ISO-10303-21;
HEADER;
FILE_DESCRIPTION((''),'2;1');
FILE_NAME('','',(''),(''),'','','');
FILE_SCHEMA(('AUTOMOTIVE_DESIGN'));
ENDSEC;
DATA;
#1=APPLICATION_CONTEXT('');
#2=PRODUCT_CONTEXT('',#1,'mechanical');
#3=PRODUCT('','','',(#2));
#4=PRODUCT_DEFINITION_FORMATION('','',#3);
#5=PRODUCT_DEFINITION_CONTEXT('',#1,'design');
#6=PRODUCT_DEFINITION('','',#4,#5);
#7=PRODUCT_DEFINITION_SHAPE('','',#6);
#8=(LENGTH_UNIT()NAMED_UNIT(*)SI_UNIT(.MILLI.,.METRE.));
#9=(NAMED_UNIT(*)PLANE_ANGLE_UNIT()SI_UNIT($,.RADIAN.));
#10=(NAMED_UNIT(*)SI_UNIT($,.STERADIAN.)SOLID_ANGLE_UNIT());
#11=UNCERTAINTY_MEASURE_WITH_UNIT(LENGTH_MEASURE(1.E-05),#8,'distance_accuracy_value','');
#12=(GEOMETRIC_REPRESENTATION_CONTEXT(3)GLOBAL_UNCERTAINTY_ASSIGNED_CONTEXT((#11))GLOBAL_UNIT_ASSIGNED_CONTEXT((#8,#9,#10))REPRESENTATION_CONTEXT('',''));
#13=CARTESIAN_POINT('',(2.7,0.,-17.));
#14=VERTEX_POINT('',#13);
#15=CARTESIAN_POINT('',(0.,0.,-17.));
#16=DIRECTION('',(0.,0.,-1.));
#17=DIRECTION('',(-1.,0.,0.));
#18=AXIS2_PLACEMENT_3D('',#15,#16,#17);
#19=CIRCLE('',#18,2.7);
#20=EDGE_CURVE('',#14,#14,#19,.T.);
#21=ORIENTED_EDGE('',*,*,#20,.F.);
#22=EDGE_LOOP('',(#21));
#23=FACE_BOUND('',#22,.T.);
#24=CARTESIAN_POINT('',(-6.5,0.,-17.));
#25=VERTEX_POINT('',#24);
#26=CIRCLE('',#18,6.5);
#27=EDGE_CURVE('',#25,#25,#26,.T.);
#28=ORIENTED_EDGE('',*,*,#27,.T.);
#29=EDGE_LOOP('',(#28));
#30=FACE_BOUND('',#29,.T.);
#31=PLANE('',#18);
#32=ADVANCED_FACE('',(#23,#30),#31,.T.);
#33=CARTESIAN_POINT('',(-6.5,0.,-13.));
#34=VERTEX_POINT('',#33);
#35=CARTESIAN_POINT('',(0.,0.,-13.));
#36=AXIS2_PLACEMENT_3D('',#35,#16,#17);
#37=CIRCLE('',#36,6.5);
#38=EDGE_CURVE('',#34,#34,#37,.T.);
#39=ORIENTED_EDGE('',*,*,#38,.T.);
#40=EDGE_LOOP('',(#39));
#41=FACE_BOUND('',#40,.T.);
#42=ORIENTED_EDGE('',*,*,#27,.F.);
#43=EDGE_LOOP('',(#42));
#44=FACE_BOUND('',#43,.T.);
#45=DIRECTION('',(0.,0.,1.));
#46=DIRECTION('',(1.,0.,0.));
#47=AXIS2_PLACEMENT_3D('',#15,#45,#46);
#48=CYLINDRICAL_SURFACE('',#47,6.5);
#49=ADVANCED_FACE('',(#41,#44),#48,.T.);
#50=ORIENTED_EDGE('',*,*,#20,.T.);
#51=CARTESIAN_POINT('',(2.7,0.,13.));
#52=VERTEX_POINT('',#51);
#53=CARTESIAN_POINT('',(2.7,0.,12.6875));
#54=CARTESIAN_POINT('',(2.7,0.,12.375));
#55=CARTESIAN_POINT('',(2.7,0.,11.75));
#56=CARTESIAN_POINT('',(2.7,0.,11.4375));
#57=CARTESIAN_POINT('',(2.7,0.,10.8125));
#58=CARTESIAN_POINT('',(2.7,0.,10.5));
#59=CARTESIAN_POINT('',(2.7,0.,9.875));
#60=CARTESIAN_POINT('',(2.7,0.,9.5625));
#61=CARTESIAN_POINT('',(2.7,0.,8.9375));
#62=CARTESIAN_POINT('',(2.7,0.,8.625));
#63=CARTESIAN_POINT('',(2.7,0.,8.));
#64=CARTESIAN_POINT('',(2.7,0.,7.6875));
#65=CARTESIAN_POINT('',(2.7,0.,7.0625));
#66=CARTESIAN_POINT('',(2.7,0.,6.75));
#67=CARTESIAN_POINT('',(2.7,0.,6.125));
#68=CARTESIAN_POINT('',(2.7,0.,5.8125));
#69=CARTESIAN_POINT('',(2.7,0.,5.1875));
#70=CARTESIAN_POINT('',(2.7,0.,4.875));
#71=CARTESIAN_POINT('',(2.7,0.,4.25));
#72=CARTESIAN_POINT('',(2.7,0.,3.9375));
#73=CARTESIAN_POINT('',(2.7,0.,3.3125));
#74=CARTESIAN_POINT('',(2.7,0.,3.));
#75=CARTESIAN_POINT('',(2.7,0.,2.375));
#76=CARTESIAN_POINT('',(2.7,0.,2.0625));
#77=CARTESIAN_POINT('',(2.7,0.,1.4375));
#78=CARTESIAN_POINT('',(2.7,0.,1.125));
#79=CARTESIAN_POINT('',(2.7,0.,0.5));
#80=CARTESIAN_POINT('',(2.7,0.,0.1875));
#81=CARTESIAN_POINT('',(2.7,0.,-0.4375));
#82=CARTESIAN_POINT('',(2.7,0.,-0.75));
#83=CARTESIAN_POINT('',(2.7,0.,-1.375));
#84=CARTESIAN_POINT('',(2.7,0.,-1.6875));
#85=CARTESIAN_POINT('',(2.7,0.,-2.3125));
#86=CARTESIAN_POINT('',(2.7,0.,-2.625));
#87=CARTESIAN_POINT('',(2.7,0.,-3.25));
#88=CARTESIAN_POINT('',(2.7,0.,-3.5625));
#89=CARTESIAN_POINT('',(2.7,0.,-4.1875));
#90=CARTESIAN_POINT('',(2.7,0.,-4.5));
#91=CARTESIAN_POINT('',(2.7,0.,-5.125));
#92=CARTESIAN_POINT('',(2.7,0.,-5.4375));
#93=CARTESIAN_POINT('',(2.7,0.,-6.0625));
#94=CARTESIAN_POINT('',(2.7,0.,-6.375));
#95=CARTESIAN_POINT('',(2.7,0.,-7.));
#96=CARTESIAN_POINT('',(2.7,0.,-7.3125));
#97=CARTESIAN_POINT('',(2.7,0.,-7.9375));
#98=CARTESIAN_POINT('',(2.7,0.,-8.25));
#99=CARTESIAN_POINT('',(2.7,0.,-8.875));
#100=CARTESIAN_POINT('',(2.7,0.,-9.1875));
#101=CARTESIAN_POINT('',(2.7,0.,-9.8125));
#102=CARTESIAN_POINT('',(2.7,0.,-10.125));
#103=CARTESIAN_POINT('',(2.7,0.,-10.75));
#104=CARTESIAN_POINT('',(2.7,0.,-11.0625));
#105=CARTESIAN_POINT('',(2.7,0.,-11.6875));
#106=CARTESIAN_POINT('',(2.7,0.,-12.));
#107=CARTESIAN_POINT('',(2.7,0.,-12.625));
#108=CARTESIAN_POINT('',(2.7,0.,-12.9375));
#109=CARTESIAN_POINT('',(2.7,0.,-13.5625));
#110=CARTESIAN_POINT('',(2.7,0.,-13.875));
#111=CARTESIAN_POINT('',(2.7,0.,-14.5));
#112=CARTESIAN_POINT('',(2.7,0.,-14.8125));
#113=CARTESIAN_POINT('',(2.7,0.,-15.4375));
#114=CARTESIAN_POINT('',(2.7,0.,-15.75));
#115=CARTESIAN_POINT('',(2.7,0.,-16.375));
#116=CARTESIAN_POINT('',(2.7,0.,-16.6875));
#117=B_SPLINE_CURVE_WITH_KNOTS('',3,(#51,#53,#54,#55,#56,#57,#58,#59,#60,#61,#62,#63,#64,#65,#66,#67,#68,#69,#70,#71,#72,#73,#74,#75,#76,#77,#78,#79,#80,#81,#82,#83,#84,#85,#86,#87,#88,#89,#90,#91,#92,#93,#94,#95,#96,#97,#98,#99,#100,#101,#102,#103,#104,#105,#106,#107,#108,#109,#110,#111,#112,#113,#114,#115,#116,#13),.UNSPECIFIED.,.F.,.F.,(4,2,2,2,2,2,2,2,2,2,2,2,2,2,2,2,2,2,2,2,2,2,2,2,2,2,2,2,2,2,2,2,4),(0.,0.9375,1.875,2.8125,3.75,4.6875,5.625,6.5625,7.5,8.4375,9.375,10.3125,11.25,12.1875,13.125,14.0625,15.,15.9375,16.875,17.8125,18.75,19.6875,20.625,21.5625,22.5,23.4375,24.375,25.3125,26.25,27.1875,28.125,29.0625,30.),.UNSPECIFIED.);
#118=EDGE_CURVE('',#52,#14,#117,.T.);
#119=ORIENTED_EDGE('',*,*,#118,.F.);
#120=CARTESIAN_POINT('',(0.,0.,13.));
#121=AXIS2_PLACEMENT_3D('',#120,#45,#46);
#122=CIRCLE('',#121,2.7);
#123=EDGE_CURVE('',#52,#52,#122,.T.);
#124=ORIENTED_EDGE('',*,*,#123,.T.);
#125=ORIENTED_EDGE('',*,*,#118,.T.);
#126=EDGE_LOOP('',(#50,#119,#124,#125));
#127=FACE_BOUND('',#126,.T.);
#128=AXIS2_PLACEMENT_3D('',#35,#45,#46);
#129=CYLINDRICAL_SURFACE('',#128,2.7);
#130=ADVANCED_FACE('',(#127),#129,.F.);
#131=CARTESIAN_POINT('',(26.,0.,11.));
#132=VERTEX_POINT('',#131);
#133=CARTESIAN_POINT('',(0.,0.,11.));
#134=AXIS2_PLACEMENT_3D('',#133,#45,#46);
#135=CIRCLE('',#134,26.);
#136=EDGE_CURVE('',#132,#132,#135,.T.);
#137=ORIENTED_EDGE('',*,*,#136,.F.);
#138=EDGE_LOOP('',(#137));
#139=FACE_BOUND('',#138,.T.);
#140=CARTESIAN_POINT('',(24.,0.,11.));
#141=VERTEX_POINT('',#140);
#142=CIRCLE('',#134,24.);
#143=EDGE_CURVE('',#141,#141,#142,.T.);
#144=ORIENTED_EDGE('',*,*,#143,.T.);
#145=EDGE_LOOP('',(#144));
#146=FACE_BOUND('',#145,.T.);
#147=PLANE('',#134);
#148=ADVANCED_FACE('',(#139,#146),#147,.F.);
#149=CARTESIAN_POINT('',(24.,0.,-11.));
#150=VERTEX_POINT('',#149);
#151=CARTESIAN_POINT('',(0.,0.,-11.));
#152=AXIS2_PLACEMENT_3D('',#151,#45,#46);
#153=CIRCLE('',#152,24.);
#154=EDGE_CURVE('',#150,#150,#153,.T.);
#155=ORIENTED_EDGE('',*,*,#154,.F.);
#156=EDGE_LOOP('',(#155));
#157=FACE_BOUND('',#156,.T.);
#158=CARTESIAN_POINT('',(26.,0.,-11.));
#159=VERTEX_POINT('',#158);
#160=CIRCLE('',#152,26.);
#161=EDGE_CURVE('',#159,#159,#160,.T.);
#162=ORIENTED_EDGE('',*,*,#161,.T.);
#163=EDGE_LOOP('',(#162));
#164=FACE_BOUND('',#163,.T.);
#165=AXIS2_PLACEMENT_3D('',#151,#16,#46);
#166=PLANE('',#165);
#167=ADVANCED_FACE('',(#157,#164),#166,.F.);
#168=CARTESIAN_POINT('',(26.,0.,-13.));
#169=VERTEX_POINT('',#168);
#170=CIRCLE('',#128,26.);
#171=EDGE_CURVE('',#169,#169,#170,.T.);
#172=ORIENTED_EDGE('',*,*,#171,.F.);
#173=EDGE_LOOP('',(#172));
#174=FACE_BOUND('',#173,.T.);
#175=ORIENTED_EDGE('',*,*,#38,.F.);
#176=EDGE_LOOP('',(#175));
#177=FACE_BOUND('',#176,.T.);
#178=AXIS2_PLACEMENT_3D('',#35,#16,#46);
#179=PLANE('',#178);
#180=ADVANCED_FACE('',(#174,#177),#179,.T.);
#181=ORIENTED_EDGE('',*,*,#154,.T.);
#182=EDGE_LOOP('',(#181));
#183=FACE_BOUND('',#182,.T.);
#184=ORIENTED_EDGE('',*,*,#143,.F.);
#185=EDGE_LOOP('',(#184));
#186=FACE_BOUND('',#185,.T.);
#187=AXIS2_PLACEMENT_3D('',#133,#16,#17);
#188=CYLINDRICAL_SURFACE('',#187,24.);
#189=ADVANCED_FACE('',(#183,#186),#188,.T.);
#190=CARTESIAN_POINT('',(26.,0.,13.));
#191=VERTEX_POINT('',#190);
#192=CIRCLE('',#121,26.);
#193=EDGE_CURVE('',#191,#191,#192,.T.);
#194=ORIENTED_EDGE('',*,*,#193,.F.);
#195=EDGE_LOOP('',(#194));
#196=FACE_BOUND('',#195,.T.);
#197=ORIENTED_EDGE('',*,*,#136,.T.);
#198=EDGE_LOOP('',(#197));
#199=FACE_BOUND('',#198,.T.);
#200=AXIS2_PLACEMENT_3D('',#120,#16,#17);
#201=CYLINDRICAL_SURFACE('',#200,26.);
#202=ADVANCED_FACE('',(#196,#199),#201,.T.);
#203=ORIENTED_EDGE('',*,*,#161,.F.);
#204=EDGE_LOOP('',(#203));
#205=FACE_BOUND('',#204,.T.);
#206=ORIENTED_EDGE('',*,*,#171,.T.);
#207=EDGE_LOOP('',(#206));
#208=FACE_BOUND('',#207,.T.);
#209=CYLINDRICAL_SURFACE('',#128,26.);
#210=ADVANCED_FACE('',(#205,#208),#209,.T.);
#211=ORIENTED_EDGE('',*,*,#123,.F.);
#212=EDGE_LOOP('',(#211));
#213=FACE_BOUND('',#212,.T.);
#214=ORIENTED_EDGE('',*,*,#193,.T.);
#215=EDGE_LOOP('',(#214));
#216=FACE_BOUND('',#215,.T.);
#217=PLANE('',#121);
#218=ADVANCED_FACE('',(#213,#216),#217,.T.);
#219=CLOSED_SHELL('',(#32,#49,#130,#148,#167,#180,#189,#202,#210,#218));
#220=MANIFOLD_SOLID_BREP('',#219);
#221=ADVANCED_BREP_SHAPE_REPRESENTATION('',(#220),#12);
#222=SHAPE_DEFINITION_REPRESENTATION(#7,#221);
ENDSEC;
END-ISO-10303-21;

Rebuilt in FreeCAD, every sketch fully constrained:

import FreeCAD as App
import Part
import Sketcher

V = App.Vector

doc = App.newDocument("Part")
params = doc.addObject("Spreadsheet::Sheet", "Params")
for row, (alias, value) in enumerate([
    ("sketch1_diameter", "48 mm"),
    ("pad1_length", "22 mm"),
    ("sketch2_diameter", "52 mm"),
    ("pad2_length", "2 mm"),
    ("sketch3_diameter", "5.4 mm"),
    ("sketch4_diameter", "13 mm"),
    ("sketch4_diameter2", "5.4 mm"),
    ("pad3_length", "4 mm"),
], start=1):
    params.set(f"A{row}", alias)
    params.set(f"B{row}", "=" + value)
    params.setAlias(f"B{row}", alias)

body = doc.addObject("PartDesign::Body", "Body")

# Sketch on XY plane
sketch1 = doc.addObject("Sketcher::SketchObject", "Sketch")
body.addObject(sketch1)
sketch1.AttachmentSupport = (doc.XY_Plane, [""])
sketch1.MapMode = "FlatFace"
sketch1.addGeometry(Part.Circle(V(0, 0, 0), V(0, 0, 1), 24), False)
sketch1.addConstraint(Sketcher.Constraint("Coincident", 0, 3, -1, 1))
sketch1.addConstraint(Sketcher.Constraint("Diameter", 0, 48.0))
sketch1.setExpression("Constraints[1]", "Params.sketch1_diameter")
pad1 = doc.addObject("PartDesign::Pad", "Pad")
body.addObject(pad1)
pad1.Profile = sketch1
pad1.setExpression("Length", "Params.pad1_length")
pad1.Midplane = True

# Sketch on XY plane
sketch2 = doc.addObject("Sketcher::SketchObject", "Sketch001")
body.addObject(sketch2)
sketch2.AttachmentSupport = (doc.XY_Plane, [""])
sketch2.MapMode = "FlatFace"
sketch2.AttachmentOffset = App.Placement(V(0, 0, 11), App.Rotation())
sketch2.addGeometry(Part.Circle(V(0, 0, 0), V(0, 0, 1), 26), False)
sketch2.addConstraint(Sketcher.Constraint("Coincident", 0, 3, -1, 1))
sketch2.addConstraint(Sketcher.Constraint("Diameter", 0, 52.0))
sketch2.setExpression("Constraints[1]", "Params.sketch2_diameter")
pad2 = doc.addObject("PartDesign::Pad", "Pad001")
body.addObject(pad2)
pad2.Profile = sketch2
pad2.setExpression("Length", "Params.pad2_length")
doc.recompute()

mirrored = doc.addObject("PartDesign::Mirrored", "Mirrored")
body.addObject(mirrored)
mirrored.Originals = [pad2]
mirrored.MirrorPlane = (doc.XY_Plane, [""])
body.Tip = mirrored

# Sketch on XY plane
sketch3 = doc.addObject("Sketcher::SketchObject", "Sketch002")
body.addObject(sketch3)
sketch3.AttachmentSupport = (doc.XY_Plane, [""])
sketch3.MapMode = "FlatFace"
sketch3.AttachmentOffset = App.Placement(V(0, 0, 13), App.Rotation())
sketch3.addGeometry(Part.Circle(V(0, 0, 0), V(0, 0, 1), 2.7), False)
sketch3.addConstraint(Sketcher.Constraint("Coincident", 0, 3, -1, 1))
sketch3.addConstraint(Sketcher.Constraint("Diameter", 0, 5.4))
sketch3.setExpression("Constraints[1]", "Params.sketch3_diameter")
pocket1 = doc.addObject("PartDesign::Pocket", "Pocket")
body.addObject(pocket1)
pocket1.Profile = sketch3
pocket1.Type = "ThroughAll"

# Sketch on XY plane
sketch4 = doc.addObject("Sketcher::SketchObject", "Sketch003")
body.addObject(sketch4)
sketch4.AttachmentSupport = (doc.XY_Plane, [""])
sketch4.MapMode = "FlatFace"
sketch4.AttachmentOffset = App.Placement(V(0, 0, -13), App.Rotation())
sketch4.addGeometry(Part.Circle(V(0, 0, 0), V(0, 0, 1), 6.5), False)
sketch4.addGeometry(Part.Circle(V(0, 0, 0), V(0, 0, 1), 2.7), False)
sketch4.addConstraint(Sketcher.Constraint("Coincident", 0, 3, -1, 1))
sketch4.addConstraint(Sketcher.Constraint("Coincident", 1, 3, -1, 1))
sketch4.addConstraint(Sketcher.Constraint("Diameter", 0, 13.0))
sketch4.addConstraint(Sketcher.Constraint("Diameter", 1, 5.4))
sketch4.setExpression("Constraints[2]", "Params.sketch4_diameter")
sketch4.setExpression("Constraints[3]", "Params.sketch4_diameter2")
pad3 = doc.addObject("PartDesign::Pad", "Pad002")
body.addObject(pad3)
pad3.Profile = sketch4
pad3.setExpression("Length", "Params.pad3_length")
pad3.Reversed = True

doc.recompute()
